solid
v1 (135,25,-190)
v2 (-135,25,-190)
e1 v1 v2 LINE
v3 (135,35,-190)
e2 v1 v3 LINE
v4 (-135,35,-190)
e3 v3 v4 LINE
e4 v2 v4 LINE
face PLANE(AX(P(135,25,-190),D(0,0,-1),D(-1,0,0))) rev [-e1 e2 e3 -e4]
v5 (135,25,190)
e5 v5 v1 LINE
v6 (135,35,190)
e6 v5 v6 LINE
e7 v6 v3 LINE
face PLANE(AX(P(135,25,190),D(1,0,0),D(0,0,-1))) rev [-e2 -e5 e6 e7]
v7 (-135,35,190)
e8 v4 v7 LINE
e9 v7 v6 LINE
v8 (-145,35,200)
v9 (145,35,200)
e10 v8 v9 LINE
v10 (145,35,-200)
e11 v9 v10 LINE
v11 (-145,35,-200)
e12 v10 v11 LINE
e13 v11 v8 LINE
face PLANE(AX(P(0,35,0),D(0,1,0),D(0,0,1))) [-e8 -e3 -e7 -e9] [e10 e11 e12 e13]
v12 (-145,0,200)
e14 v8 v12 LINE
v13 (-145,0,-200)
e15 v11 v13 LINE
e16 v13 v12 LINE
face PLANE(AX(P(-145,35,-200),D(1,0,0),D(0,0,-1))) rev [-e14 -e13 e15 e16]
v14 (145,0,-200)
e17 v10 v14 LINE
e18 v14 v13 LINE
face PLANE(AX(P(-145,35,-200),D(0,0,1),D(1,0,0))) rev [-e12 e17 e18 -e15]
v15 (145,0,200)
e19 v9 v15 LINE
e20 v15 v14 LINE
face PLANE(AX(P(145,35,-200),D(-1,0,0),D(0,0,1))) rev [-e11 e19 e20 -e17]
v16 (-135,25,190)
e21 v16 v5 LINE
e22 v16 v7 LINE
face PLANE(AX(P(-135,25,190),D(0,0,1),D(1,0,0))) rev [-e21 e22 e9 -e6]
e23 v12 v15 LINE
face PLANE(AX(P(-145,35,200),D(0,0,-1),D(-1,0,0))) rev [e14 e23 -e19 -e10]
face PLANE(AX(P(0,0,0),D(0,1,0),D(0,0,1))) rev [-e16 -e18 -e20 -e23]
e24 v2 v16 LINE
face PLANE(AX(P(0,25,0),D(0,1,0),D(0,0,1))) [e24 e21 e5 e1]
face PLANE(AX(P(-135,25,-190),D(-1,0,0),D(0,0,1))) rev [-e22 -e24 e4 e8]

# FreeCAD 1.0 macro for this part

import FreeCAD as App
import Part
import Sketcher

V = App.Vector


def add_polygon(sketch, points):
    """Adds a closed chain of lines whose ends are joined by coincident constraints."""
    first, n = sketch.GeometryCount, len(points)
    for a, b in zip(points, points[1:] + points[:1]):
        sketch.addGeometry(Part.LineSegment(App.Vector(*a, 0), App.Vector(*b, 0)), False)
    for i in range(n):
        sketch.addConstraint(Sketcher.Constraint("Coincident", first + i, 2, first + (i + 1) % n, 1))

doc = App.newDocument("Part")
body = doc.addObject("PartDesign::Body", "Body")

sketch1 = body.newObject("Sketcher::SketchObject", "Sketch")
sketch1.AttachmentSupport = (doc.getObject("XZ_Plane"), [""])
sketch1.MapMode = "FlatFace"
add_polygon(sketch1, [(-145, -200), (-145, 200), (145, 200), (145, -200)])
sketch1.addConstraint([
    Sketcher.Constraint("Vertical", 0),
    Sketcher.Constraint("Horizontal", 1),
    Sketcher.Constraint("Vertical", 2),
    Sketcher.Constraint("Horizontal", 3),
    Sketcher.Constraint("Symmetric", 0, 2, 2, 2, -1, 1),
    Sketcher.Constraint("DistanceX", 1, 1, 1, 2, 290.0),
    Sketcher.Constraint("DistanceY", 0, 1, 0, 2, 400.0),
])
pad1 = body.newObject("PartDesign::Pad", "Pad")
pad1.Profile = sketch1
pad1.Length = 35
pad1.Reversed = True

sketch2 = body.newObject("Sketcher::SketchObject", "Sketch001")
sketch2.AttachmentSupport = (doc.getObject("XZ_Plane"), [""])
sketch2.MapMode = "FlatFace"
sketch2.AttachmentOffset = App.Placement(V(0, 0, -35), App.Rotation())
add_polygon(sketch2, [(-135, -190), (-135, 190), (135, 190), (135, -190)])
sketch2.addConstraint([
    Sketcher.Constraint("Vertical", 0),
    Sketcher.Constraint("Horizontal", 1),
    Sketcher.Constraint("Vertical", 2),
    Sketcher.Constraint("Horizontal", 3),
    Sketcher.Constraint("Symmetric", 0, 2, 2, 2, -1, 1),
    Sketcher.Constraint("DistanceX", 1, 1, 1, 2, 270.0),
    Sketcher.Constraint("DistanceY", 0, 1, 0, 2, 380.0),
])
pocket1 = body.newObject("PartDesign::Pocket", "Pocket")
pocket1.Profile = sketch2
pocket1.Length = 10
pocket1.Reversed = True

doc.recompute()
